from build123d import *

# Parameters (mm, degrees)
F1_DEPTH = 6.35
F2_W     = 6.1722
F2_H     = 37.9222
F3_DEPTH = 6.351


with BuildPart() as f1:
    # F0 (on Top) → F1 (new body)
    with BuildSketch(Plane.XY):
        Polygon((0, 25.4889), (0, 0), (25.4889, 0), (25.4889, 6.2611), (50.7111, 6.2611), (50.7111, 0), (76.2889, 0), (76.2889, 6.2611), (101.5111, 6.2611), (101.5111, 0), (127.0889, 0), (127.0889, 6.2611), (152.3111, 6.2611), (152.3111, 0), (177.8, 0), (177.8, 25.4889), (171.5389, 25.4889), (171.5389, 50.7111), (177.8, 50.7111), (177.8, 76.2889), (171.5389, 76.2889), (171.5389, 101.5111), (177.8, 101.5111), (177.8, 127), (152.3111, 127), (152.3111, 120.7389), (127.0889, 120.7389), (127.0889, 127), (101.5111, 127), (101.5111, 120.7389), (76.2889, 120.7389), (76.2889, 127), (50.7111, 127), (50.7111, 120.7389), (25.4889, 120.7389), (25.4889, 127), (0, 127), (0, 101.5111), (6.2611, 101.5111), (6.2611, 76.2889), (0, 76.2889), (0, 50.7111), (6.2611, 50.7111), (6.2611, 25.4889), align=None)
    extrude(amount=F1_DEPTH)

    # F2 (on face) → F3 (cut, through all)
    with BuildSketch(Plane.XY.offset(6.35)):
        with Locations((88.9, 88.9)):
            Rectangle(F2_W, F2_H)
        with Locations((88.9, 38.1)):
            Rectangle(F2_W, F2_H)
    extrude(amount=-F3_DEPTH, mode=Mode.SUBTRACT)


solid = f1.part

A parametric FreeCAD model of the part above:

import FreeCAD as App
import Part
import Sketcher
Q = App.Units.Quantity


def add_polygon(sketch, points):
    """Adds a closed chain of lines whose ends are joined by coincident constraints."""
    first, n = sketch.GeometryCount, len(points)
    for a, b in zip(points, points[1:] + points[:1]):
        sketch.addGeometry(Part.LineSegment(App.Vector(*a, 0), App.Vector(*b, 0)), False)
    for i in range(n):
        sketch.addConstraint(Sketcher.Constraint("Coincident", first + i, 2, first + (i + 1) % n, 1))

doc = App.newDocument("Part")
body = doc.addObject("PartDesign::Body", "Body")

# Sketch on XY plane
sketch1 = body.newObject("Sketcher::SketchObject", "Sketch")
sketch1.AttachmentSupport = (doc.getObject("XY_Plane"), [""])
sketch1.MapMode = "FlatFace"
add_polygon(sketch1, [(0, 25.4889), (0, 0), (25.4889, 0), (25.4889, 6.2611), (50.7111, 6.2611), (50.7111, 0), (76.2889, 0), (76.2889, 6.2611), (101.5111, 6.2611), (101.5111, 0), (127.0889, 0), (127.0889, 6.2611), (152.3111, 6.2611), (152.3111, 0), (177.8, 0), (177.8, 25.4889), (171.5389, 25.4889), (171.5389, 50.7111), (177.8, 50.7111), (177.8, 76.2889), (171.5389, 76.2889), (171.5389, 101.5111), (177.8, 101.5111), (177.8, 127), (152.3111, 127), (152.3111, 120.7389), (127.0889, 120.7389), (127.0889, 127), (101.5111, 127), (101.5111, 120.7389), (76.2889, 120.7389), (76.2889, 127), (50.7111, 127), (50.7111, 120.7389), (25.4889, 120.7389), (25.4889, 127), (0, 127), (0, 101.5111), (6.2611, 101.5111), (6.2611, 76.2889), (0, 76.2889), (0, 50.7111), (6.2611, 50.7111), (6.2611, 25.4889)])  # lines 0-43
sketch1.addConstraint(Sketcher.Constraint("Vertical", 0))
sketch1.addConstraint(Sketcher.Constraint("Horizontal", 1))
sketch1.addConstraint(Sketcher.Constraint("Vertical", 2))
sketch1.addConstraint(Sketcher.Constraint("Horizontal", 3))
sketch1.addConstraint(Sketcher.Constraint("Vertical", 4))
sketch1.addConstraint(Sketcher.Constraint("Horizontal", 5))
sketch1.addConstraint(Sketcher.Constraint("Vertical", 6))
sketch1.addConstraint(Sketcher.Constraint("Horizontal", 7))
sketch1.addConstraint(Sketcher.Constraint("Vertical", 8))
sketch1.addConstraint(Sketcher.Constraint("Horizontal", 9))
sketch1.addConstraint(Sketcher.Constraint("Vertical", 10))
sketch1.addConstraint(Sketcher.Constraint("Horizontal", 11))
sketch1.addConstraint(Sketcher.Constraint("Vertical", 12))
sketch1.addConstraint(Sketcher.Constraint("Horizontal", 13))
sketch1.addConstraint(Sketcher.Constraint("Vertical", 14))
sketch1.addConstraint(Sketcher.Constraint("Horizontal", 15))
sketch1.addConstraint(Sketcher.Constraint("Vertical", 16))
sketch1.addConstraint(Sketcher.Constraint("Horizontal", 17))
sketch1.addConstraint(Sketcher.Constraint("Vertical", 18))
sketch1.addConstraint(Sketcher.Constraint("Horizontal", 19))
sketch1.addConstraint(Sketcher.Constraint("Vertical", 20))
sketch1.addConstraint(Sketcher.Constraint("Horizontal", 21))
sketch1.addConstraint(Sketcher.Constraint("Vertical", 22))
sketch1.addConstraint(Sketcher.Constraint("Horizontal", 23))
sketch1.addConstraint(Sketcher.Constraint("Vertical", 24))
sketch1.addConstraint(Sketcher.Constraint("Horizontal", 25))
sketch1.addConstraint(Sketcher.Constraint("Vertical", 26))
sketch1.addConstraint(Sketcher.Constraint("Horizontal", 27))
sketch1.addConstraint(Sketcher.Constraint("Vertical", 28))
sketch1.addConstraint(Sketcher.Constraint("Horizontal", 29))
sketch1.addConstraint(Sketcher.Constraint("Vertical", 30))
sketch1.addConstraint(Sketcher.Constraint("Horizontal", 31))
sketch1.addConstraint(Sketcher.Constraint("Vertical", 32))
sketch1.addConstraint(Sketcher.Constraint("Horizontal", 33))
sketch1.addConstraint(Sketcher.Constraint("Vertical", 34))
sketch1.addConstraint(Sketcher.Constraint("Horizontal", 35))
sketch1.addConstraint(Sketcher.Constraint("Vertical", 36))
sketch1.addConstraint(Sketcher.Constraint("Horizontal", 37))
sketch1.addConstraint(Sketcher.Constraint("Vertical", 38))
sketch1.addConstraint(Sketcher.Constraint("Horizontal", 39))
sketch1.addConstraint(Sketcher.Constraint("Vertical", 40))
sketch1.addConstraint(Sketcher.Constraint("Horizontal", 41))
sketch1.addConstraint(Sketcher.Constraint("Vertical", 42))
sketch1.addConstraint(Sketcher.Constraint("Horizontal", 43))
sketch1.addConstraint(Sketcher.Constraint("Coincident", 0, 2, -1, 1))
sketch1.addConstraint(Sketcher.Constraint("PointOnObject", 4, 2, -1))
sketch1.addConstraint(Sketcher.Constraint("PointOnObject", 8, 2, -1))
sketch1.addConstraint(Sketcher.Constraint("PointOnObject", 12, 2, -1))
sketch1.addConstraint(Sketcher.Constraint("PointOnObject", 35, 2, -2))
sketch1.addConstraint(Sketcher.Constraint("PointOnObject", 39, 2, -2))
sketch1.addConstraint(Sketcher.Constraint("Horizontal", 3, 2, 6, 2))
sketch1.addConstraint(Sketcher.Constraint("Horizontal", 7, 2, 10, 2))
sketch1.addConstraint(Sketcher.Constraint("Horizontal", 23, 2, 26, 2))
sketch1.addConstraint(Sketcher.Constraint("Horizontal", 25, 2, 28, 2))
sketch1.addConstraint(Sketcher.Constraint("Horizontal", 27, 2, 30, 2))
sketch1.addConstraint(Sketcher.Constraint("Horizontal", 29, 2, 32, 2))
sketch1.addConstraint(Sketcher.Constraint("Horizontal", 31, 2, 34, 2))
sketch1.addConstraint(Sketcher.Constraint("Horizontal", 21, 2, 36, 2))
sketch1.addConstraint(Sketcher.Constraint("Horizontal", 19, 2, 38, 2))
sketch1.addConstraint(Sketcher.Constraint("Horizontal", 17, 2, 40, 2))
sketch1.addConstraint(Sketcher.Constraint("Horizontal", 15, 2, 42, 2))
sketch1.addConstraint(Sketcher.Constraint("Vertical", 14, 2, 17, 2))
sketch1.addConstraint(Sketcher.Constraint("Vertical", 16, 2, 19, 2))
sketch1.addConstraint(Sketcher.Constraint("Vertical", 18, 2, 21, 2))
sketch1.addConstraint(Sketcher.Constraint("Vertical", 12, 2, 23, 2))
sketch1.addConstraint(Sketcher.Constraint("Vertical", 10, 2, 25, 2))
sketch1.addConstraint(Sketcher.Constraint("Vertical", 8, 2, 27, 2))
sketch1.addConstraint(Sketcher.Constraint("Vertical", 6, 2, 29, 2))
sketch1.addConstraint(Sketcher.Constraint("Vertical", 4, 2, 31, 2))
sketch1.addConstraint(Sketcher.Constraint("Vertical", 2, 2, 33, 2))
sketch1.addConstraint(Sketcher.Constraint("Vertical", 38, 2, 41, 2))
sketch1.addConstraint(Sketcher.Constraint("Equal", 3, 7))
sketch1.addConstraint(Sketcher.Constraint("Equal", 5, 9))
sketch1.addConstraint(Sketcher.Constraint("Equal", 7, 11))
sketch1.addConstraint(Sketcher.Constraint("Equal", 1, 13))
sketch1.addConstraint(Sketcher.Constraint("Equal", 21, 37))
sketch1.addConstraint(Sketcher.Constraint("Equal", 35, 0))
sketch1.addConstraint(Sketcher.Constraint("Equal", 43, 2))
sketch1.addConstraint(Sketcher.Constraint("Equal", 33, 16))
sketch1.addConstraint(Sketcher.Constraint("Equal", 31, 18))
sketch1.addConstraint(Sketcher.Constraint("Equal", 16, 20))
sketch1.addConstraint(Sketcher.Constraint("Equal", 14, 22))
sketch1.addConstraint(Sketcher.Constraint("Equal", 12, 24))
sketch1.addConstraint(Sketcher.Constraint("DistanceX", -1, 1, 13, 2, Q("7 in")))
sketch1.addConstraint(Sketcher.Constraint("DistanceY", -1, 1, 22, 2, Q("5 in")))
sketch1.addConstraint(Sketcher.Constraint("DistanceX", 3, 1, 3, 2, Q("0.993 in")))
sketch1.addConstraint(Sketcher.Constraint("DistanceX", 10, 2, 15, 2, Q("1.75 in")))
pad1 = body.newObject("PartDesign::Pad", "Pad")
pad1.Profile = sketch1
pad1.Length = Q("0.25 in")

# Sketch on XY plane
sketch2 = body.newObject("Sketcher::SketchObject", "Sketch001")
sketch2.AttachmentSupport = (doc.getObject("XY_Plane"), [""])
sketch2.MapMode = "FlatFace"
sketch2.AttachmentOffset = App.Placement(App.Vector(0, 0, 0.25 * 25.4), App.Rotation())
add_polygon(sketch2, [(85.8139, 107.8611), (85.8139, 69.9389), (91.9861, 69.9389), (91.9861, 107.8611)])  # lines 0-3
add_polygon(sketch2, [(85.8139, 57.0611), (85.8139, 19.1389), (91.9861, 19.1389), (91.9861, 57.0611)])  # lines 4-7
sketch2.addConstraint(Sketcher.Constraint("Vertical", 0))
sketch2.addConstraint(Sketcher.Constraint("Horizontal", 1))
sketch2.addConstraint(Sketcher.Constraint("Vertical", 2))
sketch2.addConstraint(Sketcher.Constraint("Horizontal", 3))
sketch2.addConstraint(Sketcher.Constraint("Vertical", 4))
sketch2.addConstraint(Sketcher.Constraint("Horizontal", 5))
sketch2.addConstraint(Sketcher.Constraint("Vertical", 6))
sketch2.addConstraint(Sketcher.Constraint("Horizontal", 7))
sketch2.addConstraint(Sketcher.Constraint("Vertical", 3, 2, 4, 2))
sketch2.addConstraint(Sketcher.Constraint("Vertical", 2, 2, 5, 2))
sketch2.addConstraint(Sketcher.Constraint("Equal", 2, 4))
sketch2.addConstraint(Sketcher.Constraint("DistanceY", 4, 2, 0, 2, Q("2 in")))
sketch2.addConstraint(Sketcher.Constraint("DistanceX", 1, 1, 1, 2, Q("0.243 in")))
sketch2.addConstraint(Sketcher.Constraint("DistanceY", 0, 2, 0, 1, Q("1.493 in")))
sketch2.addConstraint(Sketcher.Constraint("DistanceX", -1, 1, 0, 2, Q("3.3785 in")))
sketch2.addConstraint(Sketcher.Constraint("DistanceY", -1, 1, 0, 2, Q("2.7535 in")))
pocket1 = body.newObject("PartDesign::Pocket", "Pocket")
pocket1.Profile = sketch2
pocket1.Type = "ThroughAll"

doc.recompute()
